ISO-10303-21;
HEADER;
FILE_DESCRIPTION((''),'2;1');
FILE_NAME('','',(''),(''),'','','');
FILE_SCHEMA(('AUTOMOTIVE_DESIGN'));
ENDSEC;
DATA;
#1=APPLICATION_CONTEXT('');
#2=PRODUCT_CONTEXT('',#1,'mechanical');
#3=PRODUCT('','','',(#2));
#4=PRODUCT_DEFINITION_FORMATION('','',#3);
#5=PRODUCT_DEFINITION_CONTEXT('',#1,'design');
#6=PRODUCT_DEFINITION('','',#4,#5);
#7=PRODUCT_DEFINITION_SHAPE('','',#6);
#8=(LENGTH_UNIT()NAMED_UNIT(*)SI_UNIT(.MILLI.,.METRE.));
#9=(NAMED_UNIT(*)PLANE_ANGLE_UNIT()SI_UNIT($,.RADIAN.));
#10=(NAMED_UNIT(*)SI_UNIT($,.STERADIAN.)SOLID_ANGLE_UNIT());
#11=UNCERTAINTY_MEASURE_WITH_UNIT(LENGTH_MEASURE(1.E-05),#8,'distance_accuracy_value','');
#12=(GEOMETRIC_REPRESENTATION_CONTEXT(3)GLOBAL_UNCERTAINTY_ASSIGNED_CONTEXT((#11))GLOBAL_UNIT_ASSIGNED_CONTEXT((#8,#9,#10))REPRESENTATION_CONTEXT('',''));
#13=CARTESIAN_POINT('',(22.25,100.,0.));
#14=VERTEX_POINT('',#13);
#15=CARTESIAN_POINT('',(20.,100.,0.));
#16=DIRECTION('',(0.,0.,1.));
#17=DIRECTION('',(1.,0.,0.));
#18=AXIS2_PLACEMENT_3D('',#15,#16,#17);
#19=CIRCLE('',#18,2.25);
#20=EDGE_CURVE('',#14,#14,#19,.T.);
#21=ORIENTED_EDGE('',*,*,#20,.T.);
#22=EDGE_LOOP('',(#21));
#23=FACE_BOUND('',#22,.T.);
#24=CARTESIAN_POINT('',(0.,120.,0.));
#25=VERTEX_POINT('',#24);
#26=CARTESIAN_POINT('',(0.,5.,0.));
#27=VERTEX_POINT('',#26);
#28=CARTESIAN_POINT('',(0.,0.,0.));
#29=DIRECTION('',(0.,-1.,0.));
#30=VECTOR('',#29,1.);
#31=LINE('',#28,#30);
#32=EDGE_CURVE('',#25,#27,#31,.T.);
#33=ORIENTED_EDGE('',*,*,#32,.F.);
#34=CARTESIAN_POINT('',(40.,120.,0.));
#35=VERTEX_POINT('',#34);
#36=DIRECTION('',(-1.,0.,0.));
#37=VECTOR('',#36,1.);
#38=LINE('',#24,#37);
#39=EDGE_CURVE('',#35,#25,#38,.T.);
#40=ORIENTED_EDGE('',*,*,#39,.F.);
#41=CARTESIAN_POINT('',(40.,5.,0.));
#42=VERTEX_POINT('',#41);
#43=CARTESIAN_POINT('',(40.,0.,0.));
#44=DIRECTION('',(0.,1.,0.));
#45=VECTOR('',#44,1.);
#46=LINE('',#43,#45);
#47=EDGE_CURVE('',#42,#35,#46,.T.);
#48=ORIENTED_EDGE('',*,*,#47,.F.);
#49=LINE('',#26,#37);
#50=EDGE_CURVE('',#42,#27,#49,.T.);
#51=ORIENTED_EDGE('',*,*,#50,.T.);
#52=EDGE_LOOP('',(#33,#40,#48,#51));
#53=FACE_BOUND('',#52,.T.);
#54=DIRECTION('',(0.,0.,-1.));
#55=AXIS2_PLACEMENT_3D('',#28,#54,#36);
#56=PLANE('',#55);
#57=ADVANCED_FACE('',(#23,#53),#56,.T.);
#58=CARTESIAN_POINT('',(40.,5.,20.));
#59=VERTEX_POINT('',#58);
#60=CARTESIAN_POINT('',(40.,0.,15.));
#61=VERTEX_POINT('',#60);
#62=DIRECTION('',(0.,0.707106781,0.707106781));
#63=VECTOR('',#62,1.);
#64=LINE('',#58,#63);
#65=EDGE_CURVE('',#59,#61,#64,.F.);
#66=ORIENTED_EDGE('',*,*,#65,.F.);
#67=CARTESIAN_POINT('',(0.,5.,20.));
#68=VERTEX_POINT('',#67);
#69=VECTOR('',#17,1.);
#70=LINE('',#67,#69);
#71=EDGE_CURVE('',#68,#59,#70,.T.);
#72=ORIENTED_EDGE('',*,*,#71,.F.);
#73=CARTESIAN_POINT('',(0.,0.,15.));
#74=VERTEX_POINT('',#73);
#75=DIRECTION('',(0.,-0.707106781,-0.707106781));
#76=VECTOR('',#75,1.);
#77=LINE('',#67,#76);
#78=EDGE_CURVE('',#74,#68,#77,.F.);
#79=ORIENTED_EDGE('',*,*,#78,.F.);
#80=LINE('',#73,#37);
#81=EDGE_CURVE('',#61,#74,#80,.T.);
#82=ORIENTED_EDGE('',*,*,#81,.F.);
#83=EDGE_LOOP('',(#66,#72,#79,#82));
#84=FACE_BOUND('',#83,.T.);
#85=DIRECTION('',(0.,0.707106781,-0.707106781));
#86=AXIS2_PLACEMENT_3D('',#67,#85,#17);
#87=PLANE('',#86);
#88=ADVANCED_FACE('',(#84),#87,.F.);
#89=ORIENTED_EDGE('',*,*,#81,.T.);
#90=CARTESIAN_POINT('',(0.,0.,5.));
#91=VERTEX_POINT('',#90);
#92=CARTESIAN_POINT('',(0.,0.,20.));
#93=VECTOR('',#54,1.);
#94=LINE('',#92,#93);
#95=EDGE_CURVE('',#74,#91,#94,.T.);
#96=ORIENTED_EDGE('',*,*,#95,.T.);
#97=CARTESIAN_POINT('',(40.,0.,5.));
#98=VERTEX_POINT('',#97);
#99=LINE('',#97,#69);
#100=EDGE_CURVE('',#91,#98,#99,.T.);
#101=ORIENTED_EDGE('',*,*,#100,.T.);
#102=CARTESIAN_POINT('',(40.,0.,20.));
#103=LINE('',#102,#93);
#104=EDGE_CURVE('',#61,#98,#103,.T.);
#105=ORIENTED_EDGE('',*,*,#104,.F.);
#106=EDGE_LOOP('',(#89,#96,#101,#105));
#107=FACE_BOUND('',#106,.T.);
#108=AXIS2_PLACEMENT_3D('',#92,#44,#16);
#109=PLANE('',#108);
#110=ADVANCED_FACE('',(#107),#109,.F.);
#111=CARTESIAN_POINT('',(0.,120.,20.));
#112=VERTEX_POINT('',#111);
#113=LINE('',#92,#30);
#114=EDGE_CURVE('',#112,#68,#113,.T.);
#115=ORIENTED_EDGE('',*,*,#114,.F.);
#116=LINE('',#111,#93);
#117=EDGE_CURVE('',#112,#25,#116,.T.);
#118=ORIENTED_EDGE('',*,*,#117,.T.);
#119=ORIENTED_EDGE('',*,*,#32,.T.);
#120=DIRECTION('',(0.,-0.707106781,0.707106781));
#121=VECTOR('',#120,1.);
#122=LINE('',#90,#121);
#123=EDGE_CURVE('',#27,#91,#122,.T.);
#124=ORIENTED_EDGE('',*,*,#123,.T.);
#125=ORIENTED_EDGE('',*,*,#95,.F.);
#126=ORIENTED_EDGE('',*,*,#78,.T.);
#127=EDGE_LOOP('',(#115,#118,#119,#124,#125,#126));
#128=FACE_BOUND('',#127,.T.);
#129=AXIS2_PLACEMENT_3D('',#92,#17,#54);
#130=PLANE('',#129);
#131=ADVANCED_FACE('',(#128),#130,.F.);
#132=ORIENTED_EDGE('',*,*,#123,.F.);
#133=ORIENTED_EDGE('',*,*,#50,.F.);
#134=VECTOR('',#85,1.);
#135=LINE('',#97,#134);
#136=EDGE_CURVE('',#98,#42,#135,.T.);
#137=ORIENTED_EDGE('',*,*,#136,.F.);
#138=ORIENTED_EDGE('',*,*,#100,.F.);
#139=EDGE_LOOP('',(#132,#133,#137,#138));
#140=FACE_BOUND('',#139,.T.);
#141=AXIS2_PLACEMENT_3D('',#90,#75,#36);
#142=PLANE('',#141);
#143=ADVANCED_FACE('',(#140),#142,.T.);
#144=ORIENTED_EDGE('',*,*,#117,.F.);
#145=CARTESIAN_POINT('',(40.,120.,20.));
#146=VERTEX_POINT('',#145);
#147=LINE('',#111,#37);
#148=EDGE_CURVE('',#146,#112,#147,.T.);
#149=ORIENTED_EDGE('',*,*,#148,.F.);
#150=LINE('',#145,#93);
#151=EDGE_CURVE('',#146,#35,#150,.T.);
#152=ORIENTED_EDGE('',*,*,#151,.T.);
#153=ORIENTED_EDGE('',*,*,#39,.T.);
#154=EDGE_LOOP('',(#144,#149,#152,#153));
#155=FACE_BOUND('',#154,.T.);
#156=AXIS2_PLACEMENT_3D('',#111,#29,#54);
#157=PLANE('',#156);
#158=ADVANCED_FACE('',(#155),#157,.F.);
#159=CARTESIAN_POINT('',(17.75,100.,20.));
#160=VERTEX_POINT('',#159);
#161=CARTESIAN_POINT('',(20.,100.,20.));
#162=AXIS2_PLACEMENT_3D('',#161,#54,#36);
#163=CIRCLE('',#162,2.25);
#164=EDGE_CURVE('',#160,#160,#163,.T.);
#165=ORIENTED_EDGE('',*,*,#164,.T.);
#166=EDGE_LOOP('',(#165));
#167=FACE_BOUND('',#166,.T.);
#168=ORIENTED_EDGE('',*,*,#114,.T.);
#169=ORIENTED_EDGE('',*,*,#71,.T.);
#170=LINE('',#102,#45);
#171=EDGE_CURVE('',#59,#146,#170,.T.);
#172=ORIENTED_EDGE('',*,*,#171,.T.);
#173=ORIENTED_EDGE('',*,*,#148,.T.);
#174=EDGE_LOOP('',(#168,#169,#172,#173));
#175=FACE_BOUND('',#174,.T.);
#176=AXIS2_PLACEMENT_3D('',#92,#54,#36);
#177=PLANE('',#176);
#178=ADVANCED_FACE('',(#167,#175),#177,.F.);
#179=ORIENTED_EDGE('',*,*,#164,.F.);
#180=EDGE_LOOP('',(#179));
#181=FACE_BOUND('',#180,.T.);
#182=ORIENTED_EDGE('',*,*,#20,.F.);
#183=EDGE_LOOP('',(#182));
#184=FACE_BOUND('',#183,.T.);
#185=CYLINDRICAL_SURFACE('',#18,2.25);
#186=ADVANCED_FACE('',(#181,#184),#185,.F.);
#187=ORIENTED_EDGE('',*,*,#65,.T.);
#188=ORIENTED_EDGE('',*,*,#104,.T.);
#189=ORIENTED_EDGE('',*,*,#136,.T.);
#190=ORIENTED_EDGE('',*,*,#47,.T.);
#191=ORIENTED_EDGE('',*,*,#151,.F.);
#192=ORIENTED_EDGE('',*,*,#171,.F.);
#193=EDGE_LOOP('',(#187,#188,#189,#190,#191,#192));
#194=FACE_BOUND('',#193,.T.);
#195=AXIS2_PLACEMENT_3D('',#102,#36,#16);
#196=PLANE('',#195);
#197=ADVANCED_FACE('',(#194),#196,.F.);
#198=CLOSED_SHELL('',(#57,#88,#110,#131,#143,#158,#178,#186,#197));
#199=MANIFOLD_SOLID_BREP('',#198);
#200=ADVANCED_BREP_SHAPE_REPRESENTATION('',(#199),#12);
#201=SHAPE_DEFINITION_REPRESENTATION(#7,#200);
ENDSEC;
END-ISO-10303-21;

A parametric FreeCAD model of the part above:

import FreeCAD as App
import Part
import Sketcher


def edges_at(feature, points):
    """Names of the edges that pass closest to the given points."""
    edges = feature.Shape.Edges
    near = lambda p: min(range(len(edges)), key=lambda i: edges[i].distToShape(Part.Vertex(*p))[0])
    return sorted({f"Edge{near(p) + 1}" for p in points})

doc = App.newDocument("Part")
body = doc.addObject("PartDesign::Body", "Body")

sketch1 = body.newObject("Sketcher::SketchObject", "Sketch")
sketch1.AttachmentSupport = (doc.getObject("XY_Plane"), [""])
sketch1.MapMode = "FlatFace"
sketch1.addGeometry(Part.LineSegment(App.Vector(0, 120, 0), App.Vector(0, 0, 0)), False)
sketch1.addGeometry(Part.LineSegment(App.Vector(0, 0, 0), App.Vector(40, 0, 0)), False)
sketch1.addGeometry(Part.LineSegment(App.Vector(40, 0, 0), App.Vector(40, 120, 0)), False)
sketch1.addGeometry(Part.LineSegment(App.Vector(40, 120, 0), App.Vector(0, 120, 0)), False)
sketch1.addConstraint(Sketcher.Constraint("Coincident", 0, 2, 1, 1))
sketch1.addConstraint(Sketcher.Constraint("Coincident", 1, 2, 2, 1))
sketch1.addConstraint(Sketcher.Constraint("Coincident", 2, 2, 3, 1))
sketch1.addConstraint(Sketcher.Constraint("Coincident", 3, 2, 0, 1))
sketch1.addConstraint(Sketcher.Constraint("Vertical", 0))
sketch1.addConstraint(Sketcher.Constraint("Horizontal", 1))
sketch1.addConstraint(Sketcher.Constraint("Vertical", 2))
sketch1.addConstraint(Sketcher.Constraint("Horizontal", 3))
sketch1.addConstraint(Sketcher.Constraint("Coincident", 0, 2, -1, 1))
sketch1.addConstraint(Sketcher.Constraint("DistanceX", 1, 1, 1, 2, 40.0))
sketch1.addConstraint(Sketcher.Constraint("DistanceY", 0, 2, 0, 1, 120.0))
pad1 = body.newObject("PartDesign::Pad", "Pad")
pad1.Profile = sketch1
pad1.Length = 20
doc.recompute()

chamfer = body.newObject("PartDesign::Chamfer", "Chamfer")
chamfer.Base = (pad1, edges_at(pad1, [(20, 0, 0), (20, 0, 20)]))
chamfer.Size = 5

sketch2 = body.newObject("Sketcher::SketchObject", "Sketch001")
sketch2.AttachmentSupport = (doc.getObject("XY_Plane"), [""])
sketch2.MapMode = "FlatFace"
sketch2.AttachmentOffset = App.Placement(App.Vector(0, 0, 20), App.Rotation())
sketch2.addGeometry(Part.Circle(App.Vector(20, 100, 0), App.Vector(0, 0, 1), 2.2), False)
sketch2.addConstraint(Sketcher.Constraint("Diameter", 0, 4.5))
sketch2.addConstraint(Sketcher.Constraint("DistanceX", -1, 1, 0, 3, 20.0))
sketch2.addConstraint(Sketcher.Constraint("DistanceY", -1, 1, 0, 3, 100.0))
pocket1 = body.newObject("PartDesign::Pocket", "Pocket")
pocket1.Profile = sketch2
pocket1.Type = "ThroughAll"
pocket1.Midplane = True

doc.recompute()
